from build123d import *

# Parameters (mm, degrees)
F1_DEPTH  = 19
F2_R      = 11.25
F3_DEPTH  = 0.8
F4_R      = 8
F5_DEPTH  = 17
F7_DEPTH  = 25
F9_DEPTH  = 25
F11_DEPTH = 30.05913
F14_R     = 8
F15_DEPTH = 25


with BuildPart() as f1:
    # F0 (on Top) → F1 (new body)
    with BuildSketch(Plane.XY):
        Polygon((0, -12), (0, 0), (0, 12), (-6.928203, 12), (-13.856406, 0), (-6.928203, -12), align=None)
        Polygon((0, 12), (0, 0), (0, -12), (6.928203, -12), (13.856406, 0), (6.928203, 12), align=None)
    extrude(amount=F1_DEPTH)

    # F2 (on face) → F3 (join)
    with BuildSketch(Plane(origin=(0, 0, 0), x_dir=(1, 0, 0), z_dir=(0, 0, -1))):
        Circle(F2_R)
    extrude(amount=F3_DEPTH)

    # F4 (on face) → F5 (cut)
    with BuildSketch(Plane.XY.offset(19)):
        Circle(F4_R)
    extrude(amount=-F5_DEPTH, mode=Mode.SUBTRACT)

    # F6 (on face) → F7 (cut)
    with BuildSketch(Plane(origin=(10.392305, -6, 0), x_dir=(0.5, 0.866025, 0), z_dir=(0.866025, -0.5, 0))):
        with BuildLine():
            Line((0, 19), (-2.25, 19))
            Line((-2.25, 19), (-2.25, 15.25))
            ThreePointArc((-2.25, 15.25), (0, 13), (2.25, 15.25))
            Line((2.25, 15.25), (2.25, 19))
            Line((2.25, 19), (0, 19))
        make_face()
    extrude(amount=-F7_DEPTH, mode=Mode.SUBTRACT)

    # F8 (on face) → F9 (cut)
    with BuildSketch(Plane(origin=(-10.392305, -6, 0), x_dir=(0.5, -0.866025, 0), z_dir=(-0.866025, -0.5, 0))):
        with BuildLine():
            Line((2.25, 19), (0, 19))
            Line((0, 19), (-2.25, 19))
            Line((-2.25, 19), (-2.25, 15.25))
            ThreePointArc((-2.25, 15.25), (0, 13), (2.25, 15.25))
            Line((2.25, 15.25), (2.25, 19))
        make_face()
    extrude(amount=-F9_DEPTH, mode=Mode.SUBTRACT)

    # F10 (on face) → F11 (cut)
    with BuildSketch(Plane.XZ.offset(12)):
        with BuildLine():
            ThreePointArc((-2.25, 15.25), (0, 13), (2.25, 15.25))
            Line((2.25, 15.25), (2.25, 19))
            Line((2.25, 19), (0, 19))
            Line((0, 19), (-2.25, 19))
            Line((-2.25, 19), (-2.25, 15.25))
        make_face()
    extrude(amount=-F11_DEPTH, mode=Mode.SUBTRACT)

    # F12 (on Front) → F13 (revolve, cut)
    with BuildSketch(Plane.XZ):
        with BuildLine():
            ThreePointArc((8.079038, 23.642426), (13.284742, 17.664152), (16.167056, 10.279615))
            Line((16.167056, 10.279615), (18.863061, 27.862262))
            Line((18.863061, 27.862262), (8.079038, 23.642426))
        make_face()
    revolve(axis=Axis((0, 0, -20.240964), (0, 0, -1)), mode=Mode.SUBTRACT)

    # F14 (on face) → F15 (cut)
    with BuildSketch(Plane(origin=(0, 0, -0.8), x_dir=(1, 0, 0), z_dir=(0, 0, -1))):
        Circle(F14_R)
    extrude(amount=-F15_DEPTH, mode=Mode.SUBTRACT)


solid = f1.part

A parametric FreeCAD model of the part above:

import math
import FreeCAD as App
import Part
import Sketcher

V = App.Vector
Q = App.Units.Quantity


def add_polygon(sketch, points):
    """Adds a closed chain of lines whose ends are joined by coincident constraints."""
    first, n = sketch.GeometryCount, len(points)
    for a, b in zip(points, points[1:] + points[:1]):
        sketch.addGeometry(Part.LineSegment(App.Vector(*a, 0), App.Vector(*b, 0)), False)
    for i in range(n):
        sketch.addConstraint(Sketcher.Constraint("Coincident", first + i, 2, first + (i + 1) % n, 1))

doc = App.newDocument("Part")
body = doc.addObject("PartDesign::Body", "Body")

sketch1 = body.newObject("Sketcher::SketchObject", "Sketch")
sketch1.AttachmentSupport = (doc.getObject("XY_Plane"), [""])
sketch1.MapMode = "FlatFace"
add_polygon(sketch1, [(-7, 12), (-14, 0), (-7, -12), (7, -12), (14, 0), (7, 12)])
sketch1.addConstraint([
    Sketcher.Constraint("Horizontal", 2),
    Sketcher.Constraint("Horizontal", 5),
    Sketcher.Constraint("Symmetric", 0, 2, 3, 2, -1, 1),
    Sketcher.Constraint("Symmetric", 1, 2, 4, 2, -1, 1),
    Sketcher.Constraint("PointOnObject", 0, 2, -1),
    Sketcher.Constraint("Parallel", 0, 3),
    Sketcher.Constraint("Vertical", 2, 2, 4, 2),
    Sketcher.Constraint("Angle", 0, Q("-119.999999 deg")),
    Sketcher.Constraint("DistanceY", 1, 2, -1, 1, Q("12 mm")),
    Sketcher.Constraint("DistanceX", 2, 1, 2, 2, Q("13.856406 mm")),
])
pad1 = body.newObject("PartDesign::Pad", "Pad")
pad1.Profile = sketch1
pad1.Length = 19

sketch2 = body.newObject("Sketcher::SketchObject", "Sketch001")
sketch2.AttachmentSupport = (doc.getObject("XY_Plane"), [""])
sketch2.MapMode = "FlatFace"
sketch2.addGeometry(Part.Circle(V(0, 0, 0), V(0, 0, 1), 11), False)
sketch2.addConstraint([
    Sketcher.Constraint("Coincident", 0, 3, -1, 1),
    Sketcher.Constraint("Diameter", 0, Q("22.5 mm")),
])
pad2 = body.newObject("PartDesign::Pad", "Pad001")
pad2.Profile = sketch2
pad2.Length = 0.8
pad2.Reversed = True

sketch3 = body.newObject("Sketcher::SketchObject", "Sketch002")
sketch3.AttachmentSupport = (doc.getObject("XY_Plane"), [""])
sketch3.MapMode = "FlatFace"
sketch3.AttachmentOffset = App.Placement(V(0, 0, 19), App.Rotation())
sketch3.addGeometry(Part.Circle(V(0, 0, 0), V(0, 0, 1), 8), False)
sketch3.addConstraint([
    Sketcher.Constraint("Coincident", 0, 3, -1, 1),
    Sketcher.Constraint("Diameter", 0, Q("16 mm")),
])
pocket1 = body.newObject("PartDesign::Pocket", "Pocket")
pocket1.Profile = sketch3
pocket1.Length = 17

sketch4 = body.newObject("Sketcher::SketchObject", "Sketch003")
sketch4.Placement = App.Placement(V(10.392305, -6, 0), App.Rotation(V(0.500000175, 0.866025303, 0), V(0, 0, 1), V(0.866025303, -0.500000175, 0), "ZXY"))
sketch4.addGeometry([
    Part.LineSegment(V(-2.3, 19, 0), V(-2.3, 15.3, 0)),
    Part.ArcOfCircle(Part.Circle(V(0, 15.3, 0), V(0, 0, 1), 2.2), math.radians(180), math.radians(360)),
    Part.LineSegment(V(2.3, 15.3, 0), V(2.3, 19, 0)),
    Part.LineSegment(V(2.3, 19, 0), V(-2.3, 19, 0)),
], False)
sketch4.addConstraint([
    Sketcher.Constraint("Tangent", 0, 2, 1, 1),
    Sketcher.Constraint("Tangent", 1, 2, 2, 1),
    Sketcher.Constraint("Coincident", 2, 2, 3, 1),
    Sketcher.Constraint("Coincident", 3, 2, 0, 1),
    Sketcher.Constraint("Vertical", 0),
    Sketcher.Constraint("Vertical", 2),
    Sketcher.Constraint("Horizontal", 3),
    Sketcher.Constraint("PointOnObject", 1, 3, -2),
    Sketcher.Constraint("Radius", 1, Q("2.25 mm")),
    Sketcher.Constraint("DistanceY", -1, 1, 2, 2, Q("19 mm")),
    Sketcher.Constraint("DistanceY", 0, 2, 0, 1, Q("3.75 mm")),
])
pocket2 = body.newObject("PartDesign::Pocket", "Pocket001")
pocket2.Profile = sketch4
pocket2.Length = 25

sketch5 = body.newObject("Sketcher::SketchObject", "Sketch004")
sketch5.Placement = App.Placement(V(-10.392305, -6, 0), App.Rotation(V(0.500000175, -0.866025303, 0), V(0, 0, 1), V(-0.866025303, -0.500000175, 0), "ZXY"))
sketch5.addGeometry([
    Part.LineSegment(V(2.3, 19, 0), V(-2.3, 19, 0)),
    Part.LineSegment(V(-2.3, 19, 0), V(-2.3, 15.3, 0)),
    Part.ArcOfCircle(Part.Circle(V(0, 15.3, 0), V(0, 0, 1), 2.2), math.radians(180), math.radians(360)),
    Part.LineSegment(V(2.3, 15.3, 0), V(2.3, 19, 0)),
], False)
sketch5.addConstraint([
    Sketcher.Constraint("Coincident", 0, 2, 1, 1),
    Sketcher.Constraint("Tangent", 1, 2, 2, 1),
    Sketcher.Constraint("Tangent", 2, 2, 3, 1),
    Sketcher.Constraint("Coincident", 3, 2, 0, 1),
    Sketcher.Constraint("Horizontal", 0),
    Sketcher.Constraint("Vertical", 1),
    Sketcher.Constraint("Vertical", 3),
    Sketcher.Constraint("PointOnObject", 2, 3, -2),
    Sketcher.Constraint("Radius", 2, Q("2.25 mm")),
    Sketcher.Constraint("DistanceY", -1, 1, 0, 2, Q("19 mm")),
    Sketcher.Constraint("DistanceY", 1, 2, 1, 1, Q("3.75 mm")),
])
pocket3 = body.newObject("PartDesign::Pocket", "Pocket002")
pocket3.Profile = sketch5
pocket3.Length = 25

sketch6 = body.newObject("Sketcher::SketchObject", "Sketch005")
sketch6.AttachmentSupport = (doc.getObject("XZ_Plane"), [""])
sketch6.MapMode = "FlatFace"
sketch6.AttachmentOffset = App.Placement(V(0, 0, 12), App.Rotation())
sketch6.addGeometry([
    Part.ArcOfCircle(Part.Circle(V(0, 15.2, 0), V(0, 0, 1), 2.2), math.radians(180), math.radians(360)),
    Part.LineSegment(V(2.2, 15.2, 0), V(2.2, 19, 0)),
    Part.LineSegment(V(2.2, 19, 0), V(-2.2, 19, 0)),
    Part.LineSegment(V(-2.2, 19, 0), V(-2.2, 15.2, 0)),
], False)
sketch6.addConstraint([
    Sketcher.Constraint("Tangent", 0, 2, 1, 1),
    Sketcher.Constraint("Coincident", 1, 2, 2, 1),
    Sketcher.Constraint("Coincident", 2, 2, 3, 1),
    Sketcher.Constraint("Tangent", 3, 2, 0, 1),
    Sketcher.Constraint("Vertical", 1),
    Sketcher.Constraint("Horizontal", 2),
    Sketcher.Constraint("Vertical", 3),
    Sketcher.Constraint("PointOnObject", 0, 3, -2),
    Sketcher.Constraint("Radius", 0, Q("2.25 mm")),
    Sketcher.Constraint("DistanceY", -1, 1, 1, 2, Q("19 mm")),
    Sketcher.Constraint("DistanceY", 1, 1, 1, 2, Q("3.75 mm")),
])
pocket4 = body.newObject("PartDesign::Pocket", "Pocket003")
pocket4.Profile = sketch6
pocket4.Length = 30.05913

sketch7 = body.newObject("Sketcher::SketchObject", "Sketch006")
sketch7.AttachmentSupport = (doc.getObject("XZ_Plane"), [""])
sketch7.MapMode = "FlatFace"
sketch7.addGeometry([
    Part.ArcOfCircle(Part.Circle(V(-7, 6, 0), V(0, 0, 1), 23), math.radians(11), math.radians(51)),
    Part.LineSegment(V(16, 10, 0), V(19, 28, 0)),
    Part.LineSegment(V(19, 28, 0), V(8, 24, 0)),
], False)
sketch7.addConstraint([
    Sketcher.Constraint("Coincident", 0, 1, 1, 1),
    Sketcher.Constraint("Coincident", 1, 2, 2, 1),
    Sketcher.Constraint("Coincident", 2, 2, 0, 2),
    Sketcher.Constraint("Radius", 0, Q("23.138114 mm")),
    Sketcher.Constraint("Distance", 1, Q("17.78814 mm")),
    Sketcher.Constraint("Distance", 2, Q("11.580249 mm")),
    Sketcher.Constraint("DistanceX", -1, 1, 1, 2, Q("18.863061 mm")),
    Sketcher.Constraint("DistanceX", 0, 3, 0, 1, Q("22.676972 mm")),
    Sketcher.Constraint("DistanceY", 0, 3, 1, 2, Q("22.179089 mm")),
    Sketcher.Constraint("DistanceY", -1, 1, 0, 3, Q("5.683173 mm")),
])
groove = body.newObject("PartDesign::Groove", "Groove")
groove.Profile = sketch7
groove.ReferenceAxis = (sketch7, ["V_Axis"])
groove.Angle = 360

sketch8 = body.newObject("Sketcher::SketchObject", "Sketch007")
sketch8.AttachmentSupport = (doc.getObject("XY_Plane"), [""])
sketch8.MapMode = "FlatFace"
sketch8.AttachmentOffset = App.Placement(V(0, 0, -0.8), App.Rotation())
sketch8.addGeometry(Part.Circle(V(0, 0, 0), V(0, 0, 1), 8), False)
sketch8.addConstraint([
    Sketcher.Constraint("Coincident", 0, 3, -1, 1),
    Sketcher.Constraint("Diameter", 0, Q("16 mm")),
])
pocket5 = body.newObject("PartDesign::Pocket", "Pocket004")
pocket5.Profile = sketch8
pocket5.Length = 25
pocket5.Reversed = True

doc.recompute()
